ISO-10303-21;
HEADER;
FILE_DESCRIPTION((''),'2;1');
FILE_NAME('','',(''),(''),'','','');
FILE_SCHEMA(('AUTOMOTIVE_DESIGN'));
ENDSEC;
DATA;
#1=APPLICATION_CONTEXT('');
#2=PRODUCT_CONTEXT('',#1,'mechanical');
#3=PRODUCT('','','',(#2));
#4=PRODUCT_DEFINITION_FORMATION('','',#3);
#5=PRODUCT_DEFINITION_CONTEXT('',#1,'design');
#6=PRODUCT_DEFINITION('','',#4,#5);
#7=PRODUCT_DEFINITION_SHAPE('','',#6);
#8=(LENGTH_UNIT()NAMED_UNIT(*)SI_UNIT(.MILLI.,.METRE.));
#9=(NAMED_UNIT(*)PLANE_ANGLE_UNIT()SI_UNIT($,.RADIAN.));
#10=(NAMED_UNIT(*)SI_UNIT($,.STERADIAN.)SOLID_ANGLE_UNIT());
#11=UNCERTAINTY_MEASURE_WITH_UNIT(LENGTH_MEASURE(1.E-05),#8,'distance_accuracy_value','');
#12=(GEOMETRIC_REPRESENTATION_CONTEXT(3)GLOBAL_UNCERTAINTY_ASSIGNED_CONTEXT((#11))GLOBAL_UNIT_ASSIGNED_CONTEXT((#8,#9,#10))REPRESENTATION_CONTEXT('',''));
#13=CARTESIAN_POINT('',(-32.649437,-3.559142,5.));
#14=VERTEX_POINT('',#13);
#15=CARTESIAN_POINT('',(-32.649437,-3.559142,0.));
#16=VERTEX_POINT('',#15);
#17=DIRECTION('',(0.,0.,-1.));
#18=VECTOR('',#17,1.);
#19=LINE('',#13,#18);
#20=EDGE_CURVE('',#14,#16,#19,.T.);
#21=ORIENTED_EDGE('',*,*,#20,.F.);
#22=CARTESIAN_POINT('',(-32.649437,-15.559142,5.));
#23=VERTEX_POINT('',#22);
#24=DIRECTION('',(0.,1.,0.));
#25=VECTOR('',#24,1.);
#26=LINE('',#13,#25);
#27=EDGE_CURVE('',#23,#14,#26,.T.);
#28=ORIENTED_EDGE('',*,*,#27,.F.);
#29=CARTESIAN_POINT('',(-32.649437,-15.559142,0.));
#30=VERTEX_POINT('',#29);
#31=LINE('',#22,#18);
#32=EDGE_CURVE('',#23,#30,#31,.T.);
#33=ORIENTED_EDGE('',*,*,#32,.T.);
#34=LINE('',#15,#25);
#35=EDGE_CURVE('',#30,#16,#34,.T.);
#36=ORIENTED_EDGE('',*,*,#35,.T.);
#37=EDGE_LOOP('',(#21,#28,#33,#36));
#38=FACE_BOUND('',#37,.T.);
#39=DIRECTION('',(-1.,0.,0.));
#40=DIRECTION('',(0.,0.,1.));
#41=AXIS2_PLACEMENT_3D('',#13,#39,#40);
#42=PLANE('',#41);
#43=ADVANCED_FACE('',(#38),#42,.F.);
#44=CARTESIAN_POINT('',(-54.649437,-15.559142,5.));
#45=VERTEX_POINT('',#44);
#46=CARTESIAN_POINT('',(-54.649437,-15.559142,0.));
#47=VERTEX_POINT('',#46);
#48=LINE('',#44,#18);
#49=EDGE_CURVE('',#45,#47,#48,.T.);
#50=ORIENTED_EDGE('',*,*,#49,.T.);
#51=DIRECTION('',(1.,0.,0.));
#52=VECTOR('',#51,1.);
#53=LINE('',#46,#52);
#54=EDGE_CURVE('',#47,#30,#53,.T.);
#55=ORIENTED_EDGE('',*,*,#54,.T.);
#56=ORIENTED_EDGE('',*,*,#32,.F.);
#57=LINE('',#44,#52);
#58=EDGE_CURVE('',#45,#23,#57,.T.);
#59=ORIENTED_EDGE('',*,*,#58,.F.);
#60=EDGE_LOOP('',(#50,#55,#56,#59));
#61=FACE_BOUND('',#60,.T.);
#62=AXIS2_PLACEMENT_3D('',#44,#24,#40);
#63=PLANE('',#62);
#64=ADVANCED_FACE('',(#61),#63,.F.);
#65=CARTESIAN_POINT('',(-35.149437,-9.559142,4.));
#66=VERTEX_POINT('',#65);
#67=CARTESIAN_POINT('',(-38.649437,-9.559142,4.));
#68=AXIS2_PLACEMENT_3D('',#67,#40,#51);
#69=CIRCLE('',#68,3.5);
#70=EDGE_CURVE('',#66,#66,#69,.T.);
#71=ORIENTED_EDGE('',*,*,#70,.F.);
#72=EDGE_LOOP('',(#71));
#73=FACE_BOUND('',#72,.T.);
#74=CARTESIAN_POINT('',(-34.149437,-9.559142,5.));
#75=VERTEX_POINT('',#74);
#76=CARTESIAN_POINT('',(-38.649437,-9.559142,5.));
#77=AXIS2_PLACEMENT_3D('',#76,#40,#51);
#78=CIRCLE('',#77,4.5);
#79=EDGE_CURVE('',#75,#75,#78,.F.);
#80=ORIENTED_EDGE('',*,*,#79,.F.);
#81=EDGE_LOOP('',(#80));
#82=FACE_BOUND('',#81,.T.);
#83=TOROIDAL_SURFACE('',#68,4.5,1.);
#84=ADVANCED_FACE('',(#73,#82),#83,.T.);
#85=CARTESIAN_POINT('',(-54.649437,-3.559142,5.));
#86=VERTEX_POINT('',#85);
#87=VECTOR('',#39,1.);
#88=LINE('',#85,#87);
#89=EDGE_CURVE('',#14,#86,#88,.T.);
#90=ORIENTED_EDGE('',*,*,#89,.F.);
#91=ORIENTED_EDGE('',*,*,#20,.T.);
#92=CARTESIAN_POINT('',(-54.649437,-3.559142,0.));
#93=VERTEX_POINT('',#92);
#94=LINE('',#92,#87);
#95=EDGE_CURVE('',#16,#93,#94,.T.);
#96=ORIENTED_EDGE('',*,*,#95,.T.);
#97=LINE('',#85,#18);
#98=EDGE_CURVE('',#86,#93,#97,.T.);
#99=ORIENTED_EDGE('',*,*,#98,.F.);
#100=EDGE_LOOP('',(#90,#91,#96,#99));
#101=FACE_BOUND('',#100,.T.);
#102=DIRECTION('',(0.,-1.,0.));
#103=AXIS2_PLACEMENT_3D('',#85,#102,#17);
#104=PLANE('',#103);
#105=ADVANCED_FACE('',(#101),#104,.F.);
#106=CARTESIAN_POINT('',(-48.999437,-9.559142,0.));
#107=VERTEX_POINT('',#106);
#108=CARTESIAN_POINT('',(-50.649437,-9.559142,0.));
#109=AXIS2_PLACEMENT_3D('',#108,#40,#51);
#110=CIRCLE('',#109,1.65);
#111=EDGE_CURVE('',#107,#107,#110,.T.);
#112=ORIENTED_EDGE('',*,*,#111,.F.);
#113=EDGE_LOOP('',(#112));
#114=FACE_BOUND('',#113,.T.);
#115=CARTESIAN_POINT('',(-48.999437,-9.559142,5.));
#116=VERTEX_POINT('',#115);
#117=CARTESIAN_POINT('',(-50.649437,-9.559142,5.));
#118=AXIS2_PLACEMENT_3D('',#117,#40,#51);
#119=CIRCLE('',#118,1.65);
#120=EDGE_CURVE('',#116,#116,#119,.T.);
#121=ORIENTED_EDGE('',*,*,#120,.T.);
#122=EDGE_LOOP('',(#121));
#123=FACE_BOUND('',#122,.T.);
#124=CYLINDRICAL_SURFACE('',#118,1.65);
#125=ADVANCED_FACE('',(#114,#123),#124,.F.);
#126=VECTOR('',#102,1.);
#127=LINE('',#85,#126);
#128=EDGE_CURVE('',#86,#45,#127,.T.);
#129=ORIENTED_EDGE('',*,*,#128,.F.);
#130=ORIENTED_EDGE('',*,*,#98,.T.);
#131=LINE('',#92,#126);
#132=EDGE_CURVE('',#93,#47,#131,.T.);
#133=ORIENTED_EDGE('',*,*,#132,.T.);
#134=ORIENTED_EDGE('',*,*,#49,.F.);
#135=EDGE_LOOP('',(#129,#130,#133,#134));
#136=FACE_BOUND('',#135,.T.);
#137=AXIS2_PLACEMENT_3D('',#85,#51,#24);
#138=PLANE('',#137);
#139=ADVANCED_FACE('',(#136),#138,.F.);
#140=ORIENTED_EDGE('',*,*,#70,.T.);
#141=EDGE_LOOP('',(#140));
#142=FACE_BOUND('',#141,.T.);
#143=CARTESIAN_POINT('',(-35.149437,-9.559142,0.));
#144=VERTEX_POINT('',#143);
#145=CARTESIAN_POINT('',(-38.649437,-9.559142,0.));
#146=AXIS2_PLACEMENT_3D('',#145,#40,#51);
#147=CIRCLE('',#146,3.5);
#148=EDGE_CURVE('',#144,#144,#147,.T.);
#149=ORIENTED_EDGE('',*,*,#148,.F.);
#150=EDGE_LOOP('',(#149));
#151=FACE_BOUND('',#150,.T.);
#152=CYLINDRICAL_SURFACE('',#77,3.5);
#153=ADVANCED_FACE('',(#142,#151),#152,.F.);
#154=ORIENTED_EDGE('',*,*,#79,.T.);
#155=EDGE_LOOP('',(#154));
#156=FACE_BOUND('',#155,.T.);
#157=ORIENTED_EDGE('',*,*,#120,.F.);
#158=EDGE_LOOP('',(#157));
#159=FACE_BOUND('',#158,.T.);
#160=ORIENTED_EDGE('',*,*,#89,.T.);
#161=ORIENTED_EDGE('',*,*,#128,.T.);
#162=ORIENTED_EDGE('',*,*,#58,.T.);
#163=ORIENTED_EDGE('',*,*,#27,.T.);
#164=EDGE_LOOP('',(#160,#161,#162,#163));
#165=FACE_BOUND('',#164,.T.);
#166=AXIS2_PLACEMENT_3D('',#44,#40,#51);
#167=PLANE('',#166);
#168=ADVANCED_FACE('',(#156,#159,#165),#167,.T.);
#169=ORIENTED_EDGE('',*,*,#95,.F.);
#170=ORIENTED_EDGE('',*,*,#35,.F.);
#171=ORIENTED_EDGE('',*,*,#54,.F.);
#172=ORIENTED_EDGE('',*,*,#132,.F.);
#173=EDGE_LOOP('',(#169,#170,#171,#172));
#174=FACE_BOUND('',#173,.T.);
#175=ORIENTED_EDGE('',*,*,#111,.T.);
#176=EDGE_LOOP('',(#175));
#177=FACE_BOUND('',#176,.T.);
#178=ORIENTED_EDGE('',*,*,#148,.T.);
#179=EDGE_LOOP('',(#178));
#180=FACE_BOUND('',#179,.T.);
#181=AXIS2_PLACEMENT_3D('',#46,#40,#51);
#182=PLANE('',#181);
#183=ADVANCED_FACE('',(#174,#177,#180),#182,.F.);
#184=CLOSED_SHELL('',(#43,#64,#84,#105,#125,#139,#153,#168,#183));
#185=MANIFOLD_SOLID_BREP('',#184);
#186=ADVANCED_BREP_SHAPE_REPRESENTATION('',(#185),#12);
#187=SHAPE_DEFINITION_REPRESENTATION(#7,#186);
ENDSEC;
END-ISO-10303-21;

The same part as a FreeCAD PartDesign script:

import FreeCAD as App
import Part
import Sketcher
from FreeCAD import Vector
Q = App.Units.Quantity


def edges_at(feature, points):
    """Names of the edges that pass closest to the given points."""
    edges = feature.Shape.Edges
    near = lambda p: min(range(len(edges)), key=lambda i: edges[i].distToShape(Part.Vertex(*p))[0])
    return sorted({f"Edge{near(p) + 1}" for p in points})


def add_polygon(sketch, points):
    """Adds a closed chain of lines whose ends are joined by coincident constraints."""
    first, n = sketch.GeometryCount, len(points)
    for a, b in zip(points, points[1:] + points[:1]):
        sketch.addGeometry(Part.LineSegment(App.Vector(*a, 0), App.Vector(*b, 0)), False)
    for i in range(n):
        sketch.addConstraint(Sketcher.Constraint("Coincident", first + i, 2, first + (i + 1) % n, 1))

doc = App.newDocument("Part")
body = doc.addObject("PartDesign::Body", "Body")

sketch1 = doc.addObject("Sketcher::SketchObject", "Sketch")
body.addObject(sketch1)
sketch1.AttachmentSupport = (doc.XY_Plane, [""])
sketch1.MapMode = "FlatFace"
add_polygon(sketch1, [(-54.649437, -3.559142), (-54.649437, -15.559142), (-32.649437, -15.559142), (-32.649437, -3.559142)])
sketch1.addConstraint([
    Sketcher.Constraint("Vertical", 0),
    Sketcher.Constraint("Horizontal", 1),
    Sketcher.Constraint("Vertical", 2),
    Sketcher.Constraint("Horizontal", 3),
    Sketcher.Constraint("DistanceX", 1, 1, 1, 2, Q("22 mm")),
    Sketcher.Constraint("DistanceY", 0, 2, 0, 1, Q("12 mm")),
    Sketcher.Constraint("DistanceY", 0, 2, -1, 1, Q("15.559142 mm")),
    Sketcher.Constraint("DistanceX", 0, 2, -1, 1, Q("54.649437 mm")),
])
pad1 = doc.addObject("PartDesign::Pad", "Pad")
body.addObject(pad1)
pad1.Profile = sketch1
pad1.Length = 5

sketch2 = doc.addObject("Sketcher::SketchObject", "Sketch001")
body.addObject(sketch2)
sketch2.AttachmentSupport = (doc.XY_Plane, [""])
sketch2.MapMode = "FlatFace"
sketch2.AttachmentOffset = App.Placement(Vector(0, 0, 5), App.Rotation())
sketch2.addGeometry(Part.Circle(Vector(-38.649437, -9.559142, 0), Vector(0, 0, 1), 3.5), False)
sketch2.addConstraint([
    Sketcher.Constraint("Diameter", 0, Q("7 mm")),
    Sketcher.Constraint("DistanceY", 0, 3, -1, 1, Q("9.559142 mm")),
    Sketcher.Constraint("DistanceX", 0, 3, -1, 1, Q("38.649437 mm")),
])
doc.recompute()
hole = doc.addObject("PartDesign::Hole", "Hole")
body.addObject(hole)
hole.Profile = sketch2
hole.ThreadType = "None"
hole.Diameter = 7
hole.DepthType = "ThroughAll"

sketch3 = doc.addObject("Sketcher::SketchObject", "Sketch002")
body.addObject(sketch3)
sketch3.AttachmentSupport = (doc.XY_Plane, [""])
sketch3.MapMode = "FlatFace"
sketch3.AttachmentOffset = App.Placement(Vector(0, 0, 5), App.Rotation())
sketch3.addGeometry(Part.Circle(Vector(-50.649437, -9.559142, 0), Vector(0, 0, 1), 1.65), False)
sketch3.addConstraint([
    Sketcher.Constraint("Diameter", 0, Q("3.3 mm")),
    Sketcher.Constraint("DistanceY", 0, 3, -1, 1, Q("9.559142 mm")),
    Sketcher.Constraint("DistanceX", 0, 3, -1, 1, Q("50.649437 mm")),
])
doc.recompute()
hole2 = doc.addObject("PartDesign::Hole", "Hole001")
body.addObject(hole2)
hole2.Profile = sketch3
hole2.ThreadType = "None"
hole2.Diameter = 3.3
hole2.DepthType = "ThroughAll"
doc.recompute()

fillet = doc.addObject("PartDesign::Fillet", "Fillet")
body.addObject(fillet)
fillet.Base = (hole2, edges_at(hole2, [(-35.149, -9.559, 5)]))
fillet.Radius = 1

doc.recompute()
